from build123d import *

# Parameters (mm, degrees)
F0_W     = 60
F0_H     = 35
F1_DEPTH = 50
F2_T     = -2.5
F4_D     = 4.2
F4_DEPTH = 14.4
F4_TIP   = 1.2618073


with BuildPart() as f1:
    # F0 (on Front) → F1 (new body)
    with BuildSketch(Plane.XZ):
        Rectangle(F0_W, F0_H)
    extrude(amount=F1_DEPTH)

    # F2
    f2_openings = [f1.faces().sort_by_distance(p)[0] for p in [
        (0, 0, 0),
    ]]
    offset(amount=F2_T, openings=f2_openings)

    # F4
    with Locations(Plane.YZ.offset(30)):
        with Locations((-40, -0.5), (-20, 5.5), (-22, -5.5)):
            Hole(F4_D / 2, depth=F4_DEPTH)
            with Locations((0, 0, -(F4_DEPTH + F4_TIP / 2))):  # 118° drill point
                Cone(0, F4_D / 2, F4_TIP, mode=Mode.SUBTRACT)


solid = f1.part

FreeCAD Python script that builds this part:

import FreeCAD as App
import Part
import Sketcher

V = App.Vector


def faces_at(feature, points):
    """Names of the faces that lie closest to the given points."""
    faces = feature.Shape.Faces
    near = lambda p: min(range(len(faces)), key=lambda i: faces[i].distToShape(Part.Vertex(*p))[0])
    return sorted({f"Face{near(p) + 1}" for p in points})

doc = App.newDocument("Part")
params = doc.addObject("Spreadsheet::Sheet", "Params")
for row, (alias, value) in enumerate([
    ("sketch1_width", "60 mm"),
    ("sketch1_height", "35 mm"),
    ("pad1_length", "50 mm"),
    ("thickness_wall", "2.5 mm"),
    ("sketch2_diameter", "4.2 mm"),
    ("hole_diameter", "4.2 mm"),
    ("hole_depth", "14.4 mm"),
], start=1):
    params.set(f"A{row}", alias)
    params.set(f"B{row}", "=" + value)
    params.setAlias(f"B{row}", alias)

body = doc.addObject("PartDesign::Body", "Body")

sketch1 = body.newObject("Sketcher::SketchObject", "Sketch")
sketch1.AttachmentSupport = (doc.getObject("XZ_Plane"), [""])
sketch1.MapMode = "FlatFace"
sketch1.addGeometry([
    Part.LineSegment(V(-30, 18, 0), V(-30, -18, 0)),
    Part.LineSegment(V(-30, -18, 0), V(30, -18, 0)),
    Part.LineSegment(V(30, -18, 0), V(30, 18, 0)),
    Part.LineSegment(V(30, 18, 0), V(-30, 18, 0)),
], False)
sketch1.addConstraint([
    Sketcher.Constraint("Coincident", 0, 2, 1, 1),
    Sketcher.Constraint("Coincident", 1, 2, 2, 1),
    Sketcher.Constraint("Coincident", 2, 2, 3, 1),
    Sketcher.Constraint("Coincident", 3, 2, 0, 1),
    Sketcher.Constraint("Vertical", 0),
    Sketcher.Constraint("Horizontal", 1),
    Sketcher.Constraint("Vertical", 2),
    Sketcher.Constraint("Horizontal", 3),
    Sketcher.Constraint("Symmetric", 0, 2, 2, 2, -1, 1),
    Sketcher.Constraint("DistanceX", 1, 1, 1, 2, 60.0),
    Sketcher.Constraint("DistanceY", 0, 2, 0, 1, 35.0),
])
sketch1.setExpression("Constraints[9]", "Params.sketch1_width")
sketch1.setExpression("Constraints[10]", "Params.sketch1_height")
pad1 = body.newObject("PartDesign::Pad", "Pad")
pad1.Profile = sketch1
pad1.setExpression("Length", "Params.pad1_length")
doc.recompute()

thickness = body.newObject("PartDesign::Thickness", "Thickness")
thickness.Base = (pad1, faces_at(pad1, [(0, 0, 0)]))
thickness.setExpression("Value", "Params.thickness_wall")
thickness.Reversed = True
thickness.Join = "Arc"

sketch2 = body.newObject("Sketcher::SketchObject", "Sketch001")
sketch2.AttachmentSupport = (doc.getObject("YZ_Plane"), [""])
sketch2.MapMode = "FlatFace"
sketch2.AttachmentOffset = App.Placement(V(0, 0, 30), App.Rotation())
sketch2.addGeometry([
    Part.Circle(V(-40, -0.5, 0), V(0, 0, 1), 2.1),
    Part.Circle(V(-20, 5.5, 0), V(0, 0, 1), 2.1),
    Part.Circle(V(-22, -5.5, 0), V(0, 0, 1), 2.1),
], False)
sketch2.addConstraint([
    Sketcher.Constraint("Equal", 0, 1),
    Sketcher.Constraint("Equal", 1, 2),
    Sketcher.Constraint("Diameter", 0, 4.2),
    Sketcher.Constraint("DistanceX", 0, 3, -1, 1, 40.0),
    Sketcher.Constraint("DistanceX", 1, 3, -1, 1, 20.0),
    Sketcher.Constraint("DistanceX", 2, 3, -1, 1, 22.0),
    Sketcher.Constraint("DistanceY", 0, 3, 1, 3, 6.0),
    Sketcher.Constraint("DistanceY", 2, 3, 1, 3, 11.0),
    Sketcher.Constraint("DistanceY", 0, 3, -1, 1, 0.5),
])
sketch2.setExpression("Constraints[2]", "Params.sketch2_diameter")
doc.recompute()
hole = body.newObject("PartDesign::Hole", "Hole")
hole.Profile = sketch2
hole.ThreadType = "None"
hole.setExpression("Diameter", "Params.hole_diameter")
hole.DepthType = "Dimension"
hole.setExpression("Depth", "Params.hole_depth")
hole.DrillPoint = "Angled"
hole.DrillPointAngle = 118

doc.recompute()
